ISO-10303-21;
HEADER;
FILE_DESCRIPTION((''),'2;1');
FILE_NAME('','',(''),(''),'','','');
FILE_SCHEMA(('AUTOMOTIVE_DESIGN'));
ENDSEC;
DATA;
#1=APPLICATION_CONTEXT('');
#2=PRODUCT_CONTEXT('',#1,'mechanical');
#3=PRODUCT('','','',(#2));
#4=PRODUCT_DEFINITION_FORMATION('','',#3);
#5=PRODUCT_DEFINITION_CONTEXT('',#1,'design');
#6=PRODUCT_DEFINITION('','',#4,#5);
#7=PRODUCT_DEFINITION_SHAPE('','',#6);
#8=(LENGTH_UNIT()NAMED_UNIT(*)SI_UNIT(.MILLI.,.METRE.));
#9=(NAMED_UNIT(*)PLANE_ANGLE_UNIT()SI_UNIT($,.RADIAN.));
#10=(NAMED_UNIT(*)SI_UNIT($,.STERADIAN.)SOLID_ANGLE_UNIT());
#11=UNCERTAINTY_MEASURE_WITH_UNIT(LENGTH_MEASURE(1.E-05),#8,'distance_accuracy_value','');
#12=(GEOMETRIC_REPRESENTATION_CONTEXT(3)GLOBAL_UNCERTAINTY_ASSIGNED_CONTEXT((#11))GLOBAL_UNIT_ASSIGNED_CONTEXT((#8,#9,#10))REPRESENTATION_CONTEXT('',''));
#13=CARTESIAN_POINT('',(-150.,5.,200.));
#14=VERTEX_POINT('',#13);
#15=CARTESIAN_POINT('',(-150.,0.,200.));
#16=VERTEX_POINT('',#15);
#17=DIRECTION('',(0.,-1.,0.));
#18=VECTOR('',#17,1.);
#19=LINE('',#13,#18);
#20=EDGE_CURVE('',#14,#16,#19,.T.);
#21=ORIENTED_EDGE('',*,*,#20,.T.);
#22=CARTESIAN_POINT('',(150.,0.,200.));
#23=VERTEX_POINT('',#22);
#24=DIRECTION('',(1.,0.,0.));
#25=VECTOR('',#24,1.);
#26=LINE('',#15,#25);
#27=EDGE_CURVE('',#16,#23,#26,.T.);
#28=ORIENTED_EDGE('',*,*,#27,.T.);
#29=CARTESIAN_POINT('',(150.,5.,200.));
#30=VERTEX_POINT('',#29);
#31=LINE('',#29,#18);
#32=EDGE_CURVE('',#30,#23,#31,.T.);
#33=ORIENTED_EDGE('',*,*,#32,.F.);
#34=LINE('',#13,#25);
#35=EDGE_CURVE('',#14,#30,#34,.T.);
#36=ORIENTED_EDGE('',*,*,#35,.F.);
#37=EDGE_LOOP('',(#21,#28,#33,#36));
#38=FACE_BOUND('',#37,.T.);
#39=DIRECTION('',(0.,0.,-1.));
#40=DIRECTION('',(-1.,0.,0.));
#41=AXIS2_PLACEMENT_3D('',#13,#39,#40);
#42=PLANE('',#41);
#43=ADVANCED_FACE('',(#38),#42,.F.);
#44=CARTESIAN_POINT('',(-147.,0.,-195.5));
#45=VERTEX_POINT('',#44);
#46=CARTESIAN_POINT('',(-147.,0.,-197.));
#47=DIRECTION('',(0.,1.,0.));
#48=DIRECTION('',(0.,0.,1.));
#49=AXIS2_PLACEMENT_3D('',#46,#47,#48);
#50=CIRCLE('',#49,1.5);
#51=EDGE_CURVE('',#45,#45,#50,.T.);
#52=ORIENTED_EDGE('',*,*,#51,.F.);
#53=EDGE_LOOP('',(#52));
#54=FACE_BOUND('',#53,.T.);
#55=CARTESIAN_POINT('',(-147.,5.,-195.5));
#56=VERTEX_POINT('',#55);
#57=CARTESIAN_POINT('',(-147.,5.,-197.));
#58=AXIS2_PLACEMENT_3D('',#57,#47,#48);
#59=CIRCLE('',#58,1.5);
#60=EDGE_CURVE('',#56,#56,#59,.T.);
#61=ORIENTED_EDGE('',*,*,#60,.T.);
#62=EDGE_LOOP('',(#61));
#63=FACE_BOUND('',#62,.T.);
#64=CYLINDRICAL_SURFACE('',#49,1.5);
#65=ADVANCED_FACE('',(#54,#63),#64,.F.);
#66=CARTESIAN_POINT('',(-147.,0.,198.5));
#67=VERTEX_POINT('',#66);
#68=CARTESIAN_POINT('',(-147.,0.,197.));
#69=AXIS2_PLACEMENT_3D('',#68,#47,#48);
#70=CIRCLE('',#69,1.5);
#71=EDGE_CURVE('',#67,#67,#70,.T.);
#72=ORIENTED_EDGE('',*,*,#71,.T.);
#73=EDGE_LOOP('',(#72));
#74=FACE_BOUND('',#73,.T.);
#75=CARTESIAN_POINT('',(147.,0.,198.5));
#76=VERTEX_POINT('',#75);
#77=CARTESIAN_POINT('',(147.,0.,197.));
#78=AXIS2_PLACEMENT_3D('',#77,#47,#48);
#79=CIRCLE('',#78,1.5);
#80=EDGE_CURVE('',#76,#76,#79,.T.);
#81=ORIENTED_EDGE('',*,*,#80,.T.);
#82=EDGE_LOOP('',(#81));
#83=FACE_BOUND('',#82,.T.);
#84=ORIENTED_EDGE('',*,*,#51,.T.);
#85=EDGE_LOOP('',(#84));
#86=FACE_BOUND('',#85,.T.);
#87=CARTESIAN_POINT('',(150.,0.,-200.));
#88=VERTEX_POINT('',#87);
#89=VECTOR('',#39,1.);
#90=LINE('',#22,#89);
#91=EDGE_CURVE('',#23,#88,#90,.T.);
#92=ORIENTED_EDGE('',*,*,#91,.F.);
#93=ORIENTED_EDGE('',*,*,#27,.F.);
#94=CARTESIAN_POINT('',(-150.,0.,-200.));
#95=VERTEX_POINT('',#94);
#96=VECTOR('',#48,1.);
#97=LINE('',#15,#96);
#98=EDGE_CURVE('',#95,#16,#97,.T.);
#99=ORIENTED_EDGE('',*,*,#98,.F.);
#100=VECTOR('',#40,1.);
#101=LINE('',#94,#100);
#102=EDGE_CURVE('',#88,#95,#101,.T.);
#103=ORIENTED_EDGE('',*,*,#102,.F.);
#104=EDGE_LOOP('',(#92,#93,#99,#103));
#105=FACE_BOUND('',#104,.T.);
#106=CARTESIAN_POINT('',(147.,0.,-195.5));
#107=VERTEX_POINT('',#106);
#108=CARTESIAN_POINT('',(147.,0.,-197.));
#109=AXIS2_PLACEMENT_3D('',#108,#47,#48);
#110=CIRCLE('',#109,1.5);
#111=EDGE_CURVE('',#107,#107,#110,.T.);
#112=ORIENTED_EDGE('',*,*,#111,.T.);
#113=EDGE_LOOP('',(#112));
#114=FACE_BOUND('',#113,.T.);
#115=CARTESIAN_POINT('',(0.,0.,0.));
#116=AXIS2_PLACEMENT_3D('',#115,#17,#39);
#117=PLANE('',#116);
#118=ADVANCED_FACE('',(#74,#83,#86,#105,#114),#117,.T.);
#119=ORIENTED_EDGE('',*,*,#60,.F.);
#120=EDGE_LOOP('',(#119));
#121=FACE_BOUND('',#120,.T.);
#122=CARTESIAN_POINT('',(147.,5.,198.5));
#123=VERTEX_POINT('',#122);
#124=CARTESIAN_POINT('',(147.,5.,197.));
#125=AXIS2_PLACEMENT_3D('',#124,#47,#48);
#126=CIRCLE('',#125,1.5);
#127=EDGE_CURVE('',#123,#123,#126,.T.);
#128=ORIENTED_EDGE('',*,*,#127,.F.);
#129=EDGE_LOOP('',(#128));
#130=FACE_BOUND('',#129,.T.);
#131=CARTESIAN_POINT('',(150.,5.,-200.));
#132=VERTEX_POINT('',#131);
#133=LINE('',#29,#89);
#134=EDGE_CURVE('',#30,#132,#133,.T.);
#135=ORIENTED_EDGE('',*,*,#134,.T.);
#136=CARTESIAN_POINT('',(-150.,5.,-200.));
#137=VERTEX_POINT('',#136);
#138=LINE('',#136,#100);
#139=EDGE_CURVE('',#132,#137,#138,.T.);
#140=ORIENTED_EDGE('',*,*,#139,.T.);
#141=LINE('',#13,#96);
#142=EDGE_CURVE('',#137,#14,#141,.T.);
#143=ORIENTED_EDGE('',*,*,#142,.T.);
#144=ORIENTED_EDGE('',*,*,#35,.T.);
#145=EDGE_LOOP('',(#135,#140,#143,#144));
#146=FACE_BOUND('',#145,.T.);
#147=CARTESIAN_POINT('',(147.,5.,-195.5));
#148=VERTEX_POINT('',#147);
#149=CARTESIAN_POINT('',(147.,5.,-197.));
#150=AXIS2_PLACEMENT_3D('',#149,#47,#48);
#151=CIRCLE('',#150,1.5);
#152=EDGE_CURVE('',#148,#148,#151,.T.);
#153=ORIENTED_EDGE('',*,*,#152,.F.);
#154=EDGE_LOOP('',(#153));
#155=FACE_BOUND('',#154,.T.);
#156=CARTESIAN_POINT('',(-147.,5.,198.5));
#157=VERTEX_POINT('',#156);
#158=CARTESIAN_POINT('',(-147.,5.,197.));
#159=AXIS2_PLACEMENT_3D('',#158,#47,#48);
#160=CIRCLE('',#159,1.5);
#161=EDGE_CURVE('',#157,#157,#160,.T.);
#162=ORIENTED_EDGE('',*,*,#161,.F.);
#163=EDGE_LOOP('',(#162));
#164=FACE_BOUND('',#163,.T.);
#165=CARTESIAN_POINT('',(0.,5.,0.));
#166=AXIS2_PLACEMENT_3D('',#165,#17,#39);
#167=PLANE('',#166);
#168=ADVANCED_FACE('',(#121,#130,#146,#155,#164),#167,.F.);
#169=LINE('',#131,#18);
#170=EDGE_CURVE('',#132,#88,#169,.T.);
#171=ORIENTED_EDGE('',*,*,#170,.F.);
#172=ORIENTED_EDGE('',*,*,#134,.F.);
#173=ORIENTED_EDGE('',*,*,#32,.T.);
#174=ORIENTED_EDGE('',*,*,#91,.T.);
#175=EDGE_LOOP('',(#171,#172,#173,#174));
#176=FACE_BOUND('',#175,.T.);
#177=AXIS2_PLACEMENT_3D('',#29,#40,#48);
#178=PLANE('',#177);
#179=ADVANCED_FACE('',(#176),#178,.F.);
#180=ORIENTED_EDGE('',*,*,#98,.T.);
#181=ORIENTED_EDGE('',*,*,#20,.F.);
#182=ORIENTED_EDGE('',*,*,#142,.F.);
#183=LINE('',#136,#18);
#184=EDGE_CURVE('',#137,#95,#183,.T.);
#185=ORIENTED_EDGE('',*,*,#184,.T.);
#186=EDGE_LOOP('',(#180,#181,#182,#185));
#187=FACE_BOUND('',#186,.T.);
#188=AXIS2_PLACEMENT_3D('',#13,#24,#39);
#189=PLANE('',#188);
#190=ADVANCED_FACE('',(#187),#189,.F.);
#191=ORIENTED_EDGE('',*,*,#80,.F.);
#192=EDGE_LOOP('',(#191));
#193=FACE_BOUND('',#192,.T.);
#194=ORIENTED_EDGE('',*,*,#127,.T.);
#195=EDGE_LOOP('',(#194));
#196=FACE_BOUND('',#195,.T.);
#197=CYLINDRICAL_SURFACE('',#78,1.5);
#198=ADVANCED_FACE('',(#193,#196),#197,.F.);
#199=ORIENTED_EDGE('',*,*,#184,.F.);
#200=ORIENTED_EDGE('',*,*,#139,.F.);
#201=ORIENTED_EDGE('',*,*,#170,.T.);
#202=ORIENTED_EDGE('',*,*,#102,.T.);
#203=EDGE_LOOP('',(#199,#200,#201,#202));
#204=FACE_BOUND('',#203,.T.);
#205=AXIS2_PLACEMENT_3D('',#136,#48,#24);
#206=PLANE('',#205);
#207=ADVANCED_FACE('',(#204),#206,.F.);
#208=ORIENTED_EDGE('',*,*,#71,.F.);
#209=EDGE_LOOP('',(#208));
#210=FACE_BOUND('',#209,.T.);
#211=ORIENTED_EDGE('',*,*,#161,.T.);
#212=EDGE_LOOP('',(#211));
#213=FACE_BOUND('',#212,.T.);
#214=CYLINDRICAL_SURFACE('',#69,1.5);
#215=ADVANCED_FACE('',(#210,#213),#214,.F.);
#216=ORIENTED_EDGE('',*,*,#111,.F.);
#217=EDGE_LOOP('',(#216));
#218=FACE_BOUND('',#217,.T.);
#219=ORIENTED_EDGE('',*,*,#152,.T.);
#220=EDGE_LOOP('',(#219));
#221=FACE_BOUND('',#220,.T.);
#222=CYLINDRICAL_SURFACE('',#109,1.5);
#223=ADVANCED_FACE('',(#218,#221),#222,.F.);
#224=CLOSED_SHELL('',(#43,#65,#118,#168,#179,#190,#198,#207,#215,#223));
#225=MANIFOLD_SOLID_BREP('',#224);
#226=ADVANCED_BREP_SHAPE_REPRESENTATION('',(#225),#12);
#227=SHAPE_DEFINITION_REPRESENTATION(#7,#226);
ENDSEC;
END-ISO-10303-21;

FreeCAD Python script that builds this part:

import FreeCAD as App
import Part
import Sketcher
from FreeCAD import Vector
Q = App.Units.Quantity

doc = App.newDocument("Part")
body = doc.addObject("PartDesign::Body", "Body")

# Sketch on XZ plane
sketch1 = body.newObject("Sketcher::SketchObject", "Sketch")
sketch1.AttachmentSupport = (doc.getObject("XZ_Plane"), [""])
sketch1.MapMode = "FlatFace"
sketch1.addGeometry([
    Part.LineSegment(Vector(-150, -200, 0), Vector(-150, 200, 0)),
    Part.LineSegment(Vector(-150, 200, 0), Vector(150, 200, 0)),
    Part.LineSegment(Vector(150, 200, 0), Vector(150, -200, 0)),
    Part.LineSegment(Vector(150, -200, 0), Vector(-150, -200, 0)),
], False)
sketch1.addConstraint([
    Sketcher.Constraint("Coincident", 0, 2, 1, 1),
    Sketcher.Constraint("Coincident", 1, 2, 2, 1),
    Sketcher.Constraint("Coincident", 2, 2, 3, 1),
    Sketcher.Constraint("Coincident", 3, 2, 0, 1),
    Sketcher.Constraint("Vertical", 0),
    Sketcher.Constraint("Horizontal", 1),
    Sketcher.Constraint("Vertical", 2),
    Sketcher.Constraint("Horizontal", 3),
    Sketcher.Constraint("Symmetric", 0, 2, 2, 2, -1, 1),
    Sketcher.Constraint("DistanceX", 1, 1, 1, 2, Q("300 mm")),
    Sketcher.Constraint("DistanceY", 0, 1, 0, 2, Q("400 mm")),
])
pad1 = body.newObject("PartDesign::Pad", "Pad")
pad1.Profile = sketch1
pad1.Length = 5
pad1.Reversed = True

# Sketch on XZ plane
sketch2 = body.newObject("Sketcher::SketchObject", "Sketch001")
sketch2.AttachmentSupport = (doc.getObject("XZ_Plane"), [""])
sketch2.MapMode = "FlatFace"
sketch2.AttachmentOffset = App.Placement(Vector(0, 0, -5), App.Rotation())
sketch2.addGeometry([
    Part.Circle(Vector(-147, -197, 0), Vector(0, 0, 1), 1.5),
    Part.Circle(Vector(147, -197, 0), Vector(0, 0, 1), 1.5),
    Part.Circle(Vector(147, 197, 0), Vector(0, 0, 1), 1.5),
    Part.Circle(Vector(-147, 197, 0), Vector(0, 0, 1), 1.5),
], False)
sketch2.addConstraint([
    Sketcher.Constraint("Equal", 0, 1),
    Sketcher.Constraint("Equal", 1, 2),
    Sketcher.Constraint("Equal", 2, 3),
    Sketcher.Constraint("Symmetric", 0, 3, 2, 3, -1, 1),
    Sketcher.Constraint("Symmetric", 1, 3, 3, 3, -1, 1),
    Sketcher.Constraint("Symmetric", 0, 3, 1, 3, -2),
    Sketcher.Constraint("Diameter", 0, Q("3 mm")),
    Sketcher.Constraint("DistanceX", 0, 3, -1, 1, Q("147 mm")),
    Sketcher.Constraint("DistanceY", 0, 3, -1, 1, Q("197 mm")),
])
pocket1 = body.newObject("PartDesign::Pocket", "Pocket")
pocket1.Profile = sketch2
pocket1.Length = 5
pocket1.Reversed = True

doc.recompute()
